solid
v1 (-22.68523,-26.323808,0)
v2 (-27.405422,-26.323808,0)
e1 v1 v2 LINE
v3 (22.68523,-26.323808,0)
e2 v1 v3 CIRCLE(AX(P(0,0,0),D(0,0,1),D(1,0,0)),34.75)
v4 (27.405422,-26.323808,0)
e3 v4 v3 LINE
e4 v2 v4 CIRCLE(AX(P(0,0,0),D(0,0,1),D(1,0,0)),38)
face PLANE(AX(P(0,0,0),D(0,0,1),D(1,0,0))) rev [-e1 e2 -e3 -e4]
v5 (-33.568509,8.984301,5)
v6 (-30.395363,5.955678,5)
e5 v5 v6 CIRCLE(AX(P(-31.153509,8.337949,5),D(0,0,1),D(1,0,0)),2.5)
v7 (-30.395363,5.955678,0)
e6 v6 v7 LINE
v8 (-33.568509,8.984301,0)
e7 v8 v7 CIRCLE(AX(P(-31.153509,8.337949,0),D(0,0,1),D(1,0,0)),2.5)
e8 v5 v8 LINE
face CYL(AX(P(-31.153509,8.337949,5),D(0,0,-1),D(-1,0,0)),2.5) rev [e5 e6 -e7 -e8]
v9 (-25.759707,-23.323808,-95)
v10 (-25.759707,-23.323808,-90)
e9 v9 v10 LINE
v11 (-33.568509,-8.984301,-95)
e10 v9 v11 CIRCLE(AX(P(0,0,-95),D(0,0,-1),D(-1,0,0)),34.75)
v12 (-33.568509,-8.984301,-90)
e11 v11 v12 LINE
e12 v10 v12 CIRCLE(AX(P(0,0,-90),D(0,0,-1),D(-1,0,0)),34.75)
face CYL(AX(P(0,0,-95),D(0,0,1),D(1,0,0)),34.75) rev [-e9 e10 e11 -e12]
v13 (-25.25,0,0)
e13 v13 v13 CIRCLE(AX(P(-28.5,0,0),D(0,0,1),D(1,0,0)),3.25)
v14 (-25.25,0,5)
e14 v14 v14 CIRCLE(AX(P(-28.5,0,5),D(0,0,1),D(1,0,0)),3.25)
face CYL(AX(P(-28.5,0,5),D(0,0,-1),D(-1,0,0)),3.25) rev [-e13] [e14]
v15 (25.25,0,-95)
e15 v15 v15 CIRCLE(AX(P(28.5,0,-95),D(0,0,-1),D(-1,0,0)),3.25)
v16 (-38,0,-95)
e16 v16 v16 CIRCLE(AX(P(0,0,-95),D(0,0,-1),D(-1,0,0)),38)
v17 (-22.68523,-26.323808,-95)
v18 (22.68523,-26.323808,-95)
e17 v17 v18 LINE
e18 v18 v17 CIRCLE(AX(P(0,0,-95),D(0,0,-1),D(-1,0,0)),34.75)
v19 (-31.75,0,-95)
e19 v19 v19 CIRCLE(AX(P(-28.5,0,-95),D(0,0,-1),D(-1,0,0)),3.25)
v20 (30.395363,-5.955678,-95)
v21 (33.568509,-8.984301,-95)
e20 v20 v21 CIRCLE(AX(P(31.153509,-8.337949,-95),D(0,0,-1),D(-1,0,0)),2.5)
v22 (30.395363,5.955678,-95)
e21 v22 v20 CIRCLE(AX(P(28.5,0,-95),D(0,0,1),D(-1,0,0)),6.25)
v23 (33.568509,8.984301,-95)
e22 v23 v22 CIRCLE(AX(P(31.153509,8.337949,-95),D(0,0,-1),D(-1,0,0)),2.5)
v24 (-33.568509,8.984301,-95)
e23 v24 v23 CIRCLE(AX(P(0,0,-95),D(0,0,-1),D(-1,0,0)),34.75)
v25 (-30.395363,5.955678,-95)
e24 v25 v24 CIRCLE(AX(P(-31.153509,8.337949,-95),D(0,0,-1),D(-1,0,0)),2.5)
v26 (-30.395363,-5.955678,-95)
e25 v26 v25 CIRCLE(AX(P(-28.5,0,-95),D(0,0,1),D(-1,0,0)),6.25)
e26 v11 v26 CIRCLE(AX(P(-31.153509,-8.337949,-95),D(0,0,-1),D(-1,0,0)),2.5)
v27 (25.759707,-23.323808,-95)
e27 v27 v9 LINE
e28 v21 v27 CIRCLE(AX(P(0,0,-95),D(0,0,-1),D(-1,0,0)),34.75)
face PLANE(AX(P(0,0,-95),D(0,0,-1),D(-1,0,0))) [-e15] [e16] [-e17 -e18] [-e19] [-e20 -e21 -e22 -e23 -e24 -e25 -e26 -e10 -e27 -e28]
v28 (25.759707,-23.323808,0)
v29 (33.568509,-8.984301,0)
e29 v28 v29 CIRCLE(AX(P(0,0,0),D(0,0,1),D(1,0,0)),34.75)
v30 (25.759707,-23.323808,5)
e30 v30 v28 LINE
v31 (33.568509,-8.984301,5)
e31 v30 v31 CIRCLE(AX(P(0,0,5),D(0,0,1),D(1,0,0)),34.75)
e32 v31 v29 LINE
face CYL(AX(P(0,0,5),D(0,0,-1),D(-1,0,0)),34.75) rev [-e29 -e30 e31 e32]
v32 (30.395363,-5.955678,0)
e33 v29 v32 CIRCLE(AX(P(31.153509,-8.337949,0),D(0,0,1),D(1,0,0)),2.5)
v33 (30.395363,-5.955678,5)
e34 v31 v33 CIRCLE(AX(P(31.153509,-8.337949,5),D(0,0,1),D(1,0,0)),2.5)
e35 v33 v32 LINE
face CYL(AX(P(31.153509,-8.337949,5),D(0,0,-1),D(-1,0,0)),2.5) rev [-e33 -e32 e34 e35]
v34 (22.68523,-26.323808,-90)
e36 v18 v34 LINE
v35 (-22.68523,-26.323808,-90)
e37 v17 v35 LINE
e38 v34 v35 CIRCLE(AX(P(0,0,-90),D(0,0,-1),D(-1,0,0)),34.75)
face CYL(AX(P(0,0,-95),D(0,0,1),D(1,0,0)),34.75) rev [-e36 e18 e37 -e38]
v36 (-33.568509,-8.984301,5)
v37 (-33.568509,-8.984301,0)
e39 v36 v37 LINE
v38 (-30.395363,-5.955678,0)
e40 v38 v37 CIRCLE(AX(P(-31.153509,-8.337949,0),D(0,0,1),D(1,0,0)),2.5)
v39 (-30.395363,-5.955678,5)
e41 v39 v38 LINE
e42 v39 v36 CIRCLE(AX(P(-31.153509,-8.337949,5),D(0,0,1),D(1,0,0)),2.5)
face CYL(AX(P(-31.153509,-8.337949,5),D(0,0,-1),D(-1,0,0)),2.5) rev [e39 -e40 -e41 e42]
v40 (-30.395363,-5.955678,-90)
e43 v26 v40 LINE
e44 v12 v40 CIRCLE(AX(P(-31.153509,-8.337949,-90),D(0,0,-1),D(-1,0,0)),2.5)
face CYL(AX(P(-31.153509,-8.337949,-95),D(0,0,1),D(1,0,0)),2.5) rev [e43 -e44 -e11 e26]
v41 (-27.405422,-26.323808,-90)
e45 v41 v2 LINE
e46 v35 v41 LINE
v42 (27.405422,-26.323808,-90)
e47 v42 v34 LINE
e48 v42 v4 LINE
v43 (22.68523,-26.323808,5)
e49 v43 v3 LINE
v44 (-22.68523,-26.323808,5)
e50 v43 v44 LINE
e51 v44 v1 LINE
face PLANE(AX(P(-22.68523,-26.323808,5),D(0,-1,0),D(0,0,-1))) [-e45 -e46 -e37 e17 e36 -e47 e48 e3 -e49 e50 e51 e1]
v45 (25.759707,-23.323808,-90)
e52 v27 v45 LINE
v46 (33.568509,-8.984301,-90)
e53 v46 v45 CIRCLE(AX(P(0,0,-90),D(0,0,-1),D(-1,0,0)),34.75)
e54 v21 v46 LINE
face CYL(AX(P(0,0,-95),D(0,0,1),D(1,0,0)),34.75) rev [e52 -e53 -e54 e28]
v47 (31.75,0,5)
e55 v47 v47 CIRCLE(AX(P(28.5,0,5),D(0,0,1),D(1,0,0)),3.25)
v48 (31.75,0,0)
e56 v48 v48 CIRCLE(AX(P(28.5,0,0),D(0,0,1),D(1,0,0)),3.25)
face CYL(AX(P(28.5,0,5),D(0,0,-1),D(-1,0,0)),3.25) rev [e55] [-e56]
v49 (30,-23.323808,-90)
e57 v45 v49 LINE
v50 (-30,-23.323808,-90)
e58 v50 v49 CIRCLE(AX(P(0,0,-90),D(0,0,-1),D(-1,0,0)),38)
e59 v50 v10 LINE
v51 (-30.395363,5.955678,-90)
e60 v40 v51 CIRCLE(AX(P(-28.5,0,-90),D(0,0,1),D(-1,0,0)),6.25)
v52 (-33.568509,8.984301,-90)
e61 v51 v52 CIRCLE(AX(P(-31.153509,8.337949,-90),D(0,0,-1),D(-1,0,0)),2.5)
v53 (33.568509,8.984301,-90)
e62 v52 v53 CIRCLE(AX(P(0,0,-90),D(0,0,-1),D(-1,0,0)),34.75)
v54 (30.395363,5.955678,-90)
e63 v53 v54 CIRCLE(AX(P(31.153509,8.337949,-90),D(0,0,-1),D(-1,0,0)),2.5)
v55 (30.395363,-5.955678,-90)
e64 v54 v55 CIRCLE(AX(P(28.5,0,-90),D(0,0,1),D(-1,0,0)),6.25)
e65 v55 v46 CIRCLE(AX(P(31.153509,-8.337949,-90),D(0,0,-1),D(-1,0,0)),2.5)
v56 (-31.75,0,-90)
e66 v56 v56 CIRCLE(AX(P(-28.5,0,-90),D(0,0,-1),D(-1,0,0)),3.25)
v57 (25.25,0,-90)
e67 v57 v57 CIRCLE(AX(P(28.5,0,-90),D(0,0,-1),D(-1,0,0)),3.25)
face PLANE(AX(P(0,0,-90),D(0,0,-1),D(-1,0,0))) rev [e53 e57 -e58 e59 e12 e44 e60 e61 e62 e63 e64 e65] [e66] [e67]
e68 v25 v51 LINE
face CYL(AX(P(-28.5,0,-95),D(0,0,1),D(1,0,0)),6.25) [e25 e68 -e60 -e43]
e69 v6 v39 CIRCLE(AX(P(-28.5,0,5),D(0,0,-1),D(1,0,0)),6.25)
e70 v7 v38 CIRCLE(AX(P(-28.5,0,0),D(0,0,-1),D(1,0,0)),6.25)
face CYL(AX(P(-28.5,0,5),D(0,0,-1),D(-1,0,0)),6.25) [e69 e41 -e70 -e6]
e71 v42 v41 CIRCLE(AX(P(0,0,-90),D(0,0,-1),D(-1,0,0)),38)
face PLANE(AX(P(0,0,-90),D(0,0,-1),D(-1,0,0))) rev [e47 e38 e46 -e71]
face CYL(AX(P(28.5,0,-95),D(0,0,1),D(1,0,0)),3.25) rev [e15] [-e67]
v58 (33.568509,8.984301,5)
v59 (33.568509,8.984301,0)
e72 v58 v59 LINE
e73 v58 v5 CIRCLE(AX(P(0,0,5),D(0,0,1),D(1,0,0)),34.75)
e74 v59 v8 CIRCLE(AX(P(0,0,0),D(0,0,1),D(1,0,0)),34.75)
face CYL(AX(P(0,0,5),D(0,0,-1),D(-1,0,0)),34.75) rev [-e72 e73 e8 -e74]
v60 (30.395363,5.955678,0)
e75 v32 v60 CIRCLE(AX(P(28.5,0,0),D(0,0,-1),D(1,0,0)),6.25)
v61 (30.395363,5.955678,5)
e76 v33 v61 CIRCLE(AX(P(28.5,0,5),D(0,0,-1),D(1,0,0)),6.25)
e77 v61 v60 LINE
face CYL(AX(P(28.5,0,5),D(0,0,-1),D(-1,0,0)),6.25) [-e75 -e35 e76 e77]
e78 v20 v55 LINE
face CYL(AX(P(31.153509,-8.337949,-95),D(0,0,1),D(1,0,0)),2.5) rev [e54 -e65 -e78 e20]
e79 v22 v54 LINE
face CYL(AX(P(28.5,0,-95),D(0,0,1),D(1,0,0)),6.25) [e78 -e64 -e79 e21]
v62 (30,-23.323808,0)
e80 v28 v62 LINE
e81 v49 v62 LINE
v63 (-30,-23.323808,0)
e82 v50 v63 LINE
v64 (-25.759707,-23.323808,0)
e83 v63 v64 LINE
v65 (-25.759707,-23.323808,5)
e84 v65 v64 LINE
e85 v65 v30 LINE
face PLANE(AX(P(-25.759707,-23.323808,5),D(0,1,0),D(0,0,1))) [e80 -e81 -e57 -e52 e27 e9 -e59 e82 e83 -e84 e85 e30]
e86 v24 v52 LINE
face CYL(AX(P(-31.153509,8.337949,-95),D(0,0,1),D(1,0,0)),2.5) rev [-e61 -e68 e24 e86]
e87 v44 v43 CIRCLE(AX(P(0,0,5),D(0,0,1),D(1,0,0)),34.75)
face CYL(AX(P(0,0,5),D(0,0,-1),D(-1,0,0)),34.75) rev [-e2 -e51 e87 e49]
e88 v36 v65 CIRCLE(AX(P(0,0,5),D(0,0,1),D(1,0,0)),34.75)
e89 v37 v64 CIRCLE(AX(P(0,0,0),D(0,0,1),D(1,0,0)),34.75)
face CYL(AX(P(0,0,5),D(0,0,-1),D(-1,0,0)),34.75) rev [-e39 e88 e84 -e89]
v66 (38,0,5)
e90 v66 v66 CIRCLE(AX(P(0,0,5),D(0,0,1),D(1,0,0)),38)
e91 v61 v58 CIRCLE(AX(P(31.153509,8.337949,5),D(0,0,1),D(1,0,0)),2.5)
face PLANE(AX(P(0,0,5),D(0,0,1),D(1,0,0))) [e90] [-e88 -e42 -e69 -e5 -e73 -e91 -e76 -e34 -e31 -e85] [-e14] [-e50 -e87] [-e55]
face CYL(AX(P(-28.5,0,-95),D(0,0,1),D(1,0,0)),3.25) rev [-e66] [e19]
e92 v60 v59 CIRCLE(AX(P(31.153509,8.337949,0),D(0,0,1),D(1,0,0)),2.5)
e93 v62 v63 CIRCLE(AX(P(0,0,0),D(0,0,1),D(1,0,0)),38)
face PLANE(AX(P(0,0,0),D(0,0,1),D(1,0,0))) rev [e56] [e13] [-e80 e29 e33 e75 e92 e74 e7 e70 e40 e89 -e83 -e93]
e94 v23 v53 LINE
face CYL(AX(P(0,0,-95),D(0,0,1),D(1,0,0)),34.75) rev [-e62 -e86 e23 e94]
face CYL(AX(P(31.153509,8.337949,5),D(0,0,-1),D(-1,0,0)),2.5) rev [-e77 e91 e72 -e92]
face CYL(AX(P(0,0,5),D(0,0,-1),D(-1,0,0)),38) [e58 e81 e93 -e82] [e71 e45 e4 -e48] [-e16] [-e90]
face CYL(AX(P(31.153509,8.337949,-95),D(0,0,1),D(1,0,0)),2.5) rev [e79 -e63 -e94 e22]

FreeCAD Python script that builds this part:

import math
import FreeCAD as App
import Part
import Sketcher
from FreeCAD import Vector
Q = App.Units.Quantity

doc = App.newDocument("Part")
params = doc.addObject("Spreadsheet::Sheet", "Params")
for row, (alias, value) in enumerate([
    ("sketch1_diameter", "76 mm"),
    ("sketch1_diameter2", "6.5 mm"),
    ("sketch1_radius", "2.5 mm"),
    ("sketch1_radius2", "34.75 mm"),
    ("sketch1_radius3", "6.25 mm"),
    ("pad1_length", "5 mm"),
    ("sketch2_radius", "38 mm"),
    ("sketch2_width", "60 mm"),
    ("pad2_length", "90 mm"),
    ("sketch3_radius", "38 mm"),
    ("sketch3_diameter", "6.5 mm"),
    ("sketch3_radius2", "2.5 mm"),
    ("sketch3_radius3", "34.75 mm"),
    ("sketch3_radius4", "6.25 mm"),
    ("pad3_length", "5 mm"),
], start=1):
    params.set(f"A{row}", alias)
    params.set(f"B{row}", "=" + value)
    params.setAlias(f"B{row}", alias)

body = doc.addObject("PartDesign::Body", "Body")

# Sketch on XY plane
sketch1 = body.newObject("Sketcher::SketchObject", "Sketch")
sketch1.AttachmentSupport = (doc.getObject("XY_Plane"), [""])
sketch1.MapMode = "FlatFace"
sketch1.addGeometry(Part.Circle(Vector(0, 0, 0), Vector(0, 0, 1), 38), False)
sketch1.addGeometry(Part.ArcOfCircle(Part.Circle(Vector(0, 0, 0), Vector(0, 0, 1), 34.7), math.radians(-131), math.radians(-49)), False)
sketch1.addGeometry(Part.LineSegment(Vector(-22.7, -26.3, 0), Vector(22.7, -26.3, 0)), False)
sketch1.addGeometry(Part.Circle(Vector(-28.5, 0, 0), Vector(0, 0, 1), 3.2), False)
sketch1.addGeometry(Part.LineSegment(Vector(25.8, -23.3, 0), Vector(-25.8, -23.3, 0)), False)
sketch1.addGeometry(Part.ArcOfCircle(Part.Circle(Vector(0, 0, 0), Vector(0, 0, 1), 34.7), math.radians(-165), math.radians(-138)), False)
sketch1.addGeometry(Part.ArcOfCircle(Part.Circle(Vector(-31.2, -8.3, 0), Vector(0, 0, 1), 2.5), math.radians(72), math.radians(195)), False)
sketch1.addGeometry(Part.ArcOfCircle(Part.Circle(Vector(-28.5, 0, 0), Vector(0, 0, 1), 6.2), math.radians(-108), math.radians(108)), False)
sketch1.addGeometry(Part.ArcOfCircle(Part.Circle(Vector(-31.2, 8.3, 0), Vector(0, 0, 1), 2.5), math.radians(165), math.radians(288)), False)
sketch1.addGeometry(Part.ArcOfCircle(Part.Circle(Vector(0, 0, 0), Vector(0, 0, 1), 34.8), math.radians(15), math.radians(165)), False)
sketch1.addGeometry(Part.ArcOfCircle(Part.Circle(Vector(31.2, 8.3, 0), Vector(0, 0, 1), 2.5), math.radians(-108), math.radians(15)), False)
sketch1.addGeometry(Part.ArcOfCircle(Part.Circle(Vector(28.5, 0, 0), Vector(0, 0, 1), 6.2), math.radians(72), math.radians(288)), False)
sketch1.addGeometry(Part.ArcOfCircle(Part.Circle(Vector(31.2, -8.3, 0), Vector(0, 0, 1), 2.5), math.radians(-15), math.radians(108)), False)
sketch1.addGeometry(Part.ArcOfCircle(Part.Circle(Vector(0, 0, 0), Vector(0, 0, 1), 34.7), math.radians(-42), math.radians(-15)), False)
sketch1.addGeometry(Part.Circle(Vector(28.5, 0, 0), Vector(0, 0, 1), 3.2), False)
sketch1.addConstraint(Sketcher.Constraint("Coincident", 1, 1, 2, 1))
sketch1.addConstraint(Sketcher.Constraint("Coincident", 2, 2, 1, 2))
sketch1.addConstraint(Sketcher.Constraint("Coincident", 4, 2, 5, 2))
sketch1.addConstraint(Sketcher.Constraint("Tangent", 5, 1, 6, 2))
sketch1.addConstraint(Sketcher.Constraint("Tangent", 6, 1, 7, 1))
sketch1.addConstraint(Sketcher.Constraint("Tangent", 7, 2, 8, 2))
sketch1.addConstraint(Sketcher.Constraint("Tangent", 8, 1, 9, 2))
sketch1.addConstraint(Sketcher.Constraint("Tangent", 9, 1, 10, 2))
sketch1.addConstraint(Sketcher.Constraint("Tangent", 10, 1, 11, 1))
sketch1.addConstraint(Sketcher.Constraint("Tangent", 11, 2, 12, 2))
sketch1.addConstraint(Sketcher.Constraint("Tangent", 12, 1, 13, 2))
sketch1.addConstraint(Sketcher.Constraint("Coincident", 13, 1, 4, 1))
sketch1.addConstraint(Sketcher.Constraint("Horizontal", 2))
sketch1.addConstraint(Sketcher.Constraint("Horizontal", 4))
sketch1.addConstraint(Sketcher.Constraint("Coincident", 0, 3, -1, 1))
sketch1.addConstraint(Sketcher.Constraint("Coincident", 1, 3, -1, 1))
sketch1.addConstraint(Sketcher.Constraint("Coincident", 5, 3, -1, 1))
sketch1.addConstraint(Sketcher.Constraint("Coincident", 9, 3, -1, 1))
sketch1.addConstraint(Sketcher.Constraint("Coincident", 13, 3, -1, 1))
sketch1.addConstraint(Sketcher.Constraint("Coincident", 7, 3, 3, 3))
sketch1.addConstraint(Sketcher.Constraint("Coincident", 14, 3, 11, 3))
sketch1.addConstraint(Sketcher.Constraint("Equal", 1, 5))
sketch1.addConstraint(Sketcher.Constraint("Equal", 6, 8))
sketch1.addConstraint(Sketcher.Constraint("Equal", 5, 9))
sketch1.addConstraint(Sketcher.Constraint("Equal", 8, 10))
sketch1.addConstraint(Sketcher.Constraint("Equal", 7, 11))
sketch1.addConstraint(Sketcher.Constraint("Equal", 10, 12))
sketch1.addConstraint(Sketcher.Constraint("Equal", 9, 13))
sketch1.addConstraint(Sketcher.Constraint("Equal", 3, 14))
sketch1.addConstraint(Sketcher.Constraint("Symmetric", 3, 3, 11, 3, -1, 1))
sketch1.addConstraint(Sketcher.Constraint("PointOnObject", 3, 3, -1))
sketch1.addConstraint(Sketcher.Constraint("Diameter", 0, Q("76 mm")))
sketch1.addConstraint(Sketcher.Constraint("Diameter", 3, Q("6.5 mm")))
sketch1.addConstraint(Sketcher.Constraint("Radius", 6, Q("2.5 mm")))
sketch1.addConstraint(Sketcher.Constraint("Radius", 1, Q("34.75 mm")))
sketch1.addConstraint(Sketcher.Constraint("Radius", 7, Q("6.25 mm")))
sketch1.addConstraint(Sketcher.Constraint("DistanceY", 1, 1, 4, 2, Q("3 mm")))
sketch1.addConstraint(Sketcher.Constraint("DistanceX", 3, 3, -1, 1, Q("28.5 mm")))
sketch1.addConstraint(Sketcher.Constraint("DistanceX", 2, 1, 2, 2, Q("45.37046 mm")))
sketch1.setExpression("Constraints[31]", "Params.sketch1_diameter")
sketch1.setExpression("Constraints[32]", "Params.sketch1_diameter2")
sketch1.setExpression("Constraints[33]", "Params.sketch1_radius")
sketch1.setExpression("Constraints[34]", "Params.sketch1_radius2")
sketch1.setExpression("Constraints[35]", "Params.sketch1_radius3")
pad1 = body.newObject("PartDesign::Pad", "Pad")
pad1.Profile = sketch1
pad1.setExpression("Length", "Params.pad1_length")

# Sketch on XY plane
sketch2 = body.newObject("Sketcher::SketchObject", "Sketch001")
sketch2.AttachmentSupport = (doc.getObject("XY_Plane"), [""])
sketch2.MapMode = "FlatFace"
sketch2.AttachmentOffset = App.Placement(Vector(0, 0, -90), App.Rotation())
sketch2.addGeometry(Part.LineSegment(Vector(-30, -23.3, 0), Vector(30, -23.3, 0)), False)
sketch2.addGeometry(Part.ArcOfCircle(Part.Circle(Vector(0, 0, 0), Vector(0, 0, 1), 38), math.radians(-43.85), math.radians(-37.86)), False)
sketch2.addGeometry(Part.LineSegment(Vector(27.4, -26.3, 0), Vector(-27.4, -26.3, 0)), False)
sketch2.addGeometry(Part.ArcOfCircle(Part.Circle(Vector(0, 0, 0), Vector(0, 0, 1), 38), math.radians(-142.14), math.radians(-136.15)), False)
sketch2.addConstraint(Sketcher.Constraint("Coincident", 0, 2, 1, 2))
sketch2.addConstraint(Sketcher.Constraint("Coincident", 1, 1, 2, 1))
sketch2.addConstraint(Sketcher.Constraint("Coincident", 2, 2, 3, 2))
sketch2.addConstraint(Sketcher.Constraint("Coincident", 3, 1, 0, 1))
sketch2.addConstraint(Sketcher.Constraint("Horizontal", 0))
sketch2.addConstraint(Sketcher.Constraint("Horizontal", 2))
sketch2.addConstraint(Sketcher.Constraint("Coincident", 1, 3, -1, 1))
sketch2.addConstraint(Sketcher.Constraint("Coincident", 3, 3, -1, 1))
sketch2.addConstraint(Sketcher.Constraint("Equal", 1, 3))
sketch2.addConstraint(Sketcher.Constraint("Radius", 1, Q("38 mm")))
sketch2.addConstraint(Sketcher.Constraint("DistanceX", 0, 1, 0, 2, Q("60 mm")))
sketch2.addConstraint(Sketcher.Constraint("DistanceY", 1, 1, 0, 2, Q("3 mm")))
sketch2.setExpression("Constraints[9]", "Params.sketch2_radius")
sketch2.setExpression("Constraints[10]", "Params.sketch2_width")
pad2 = body.newObject("PartDesign::Pad", "Pad001")
pad2.Profile = sketch2
pad2.setExpression("Length", "Params.pad2_length")

# Sketch on XY plane
sketch3 = body.newObject("Sketcher::SketchObject", "Sketch002")
sketch3.AttachmentSupport = (doc.getObject("XY_Plane"), [""])
sketch3.MapMode = "FlatFace"
sketch3.AttachmentOffset = App.Placement(Vector(0, 0, -95), App.Rotation())
sketch3.addGeometry(Part.ArcOfCircle(Part.Circle(Vector(0, 0, 0), Vector(0, 0, 1), 38), math.radians(-43.85), math.radians(-37.86)), False)
sketch3.addGeometry(Part.ArcOfCircle(Part.Circle(Vector(0, 0, 0), Vector(0, 0, 1), 38), math.radians(-136), math.radians(-44)), False)
sketch3.addGeometry(Part.ArcOfCircle(Part.Circle(Vector(0, 0, 0), Vector(0, 0, 1), 38), math.radians(-142.14), math.radians(-136.15)), False)
sketch3.addGeometry(Part.ArcOfCircle(Part.Circle(Vector(0, 0, 0), Vector(0, 0, 1), 38), math.radians(-38), math.radians(218)), False)
sketch3.addGeometry(Part.ArcOfCircle(Part.Circle(Vector(0, 0, 0), Vector(0, 0, 1), 34.7), math.radians(-131), math.radians(-49)), False)
sketch3.addGeometry(Part.LineSegment(Vector(22.7, -26.3, 0), Vector(-22.7, -26.3, 0)), False)
sketch3.addGeometry(Part.Circle(Vector(28.5, 0, 0), Vector(0, 0, 1), 3.2), False)
sketch3.addGeometry(Part.ArcOfCircle(Part.Circle(Vector(0, 0, 0), Vector(0, 0, 1), 34.7), math.radians(-165), math.radians(-138)), False)
sketch3.addGeometry(Part.LineSegment(Vector(-25.8, -23.3, 0), Vector(25.8, -23.3, 0)), False)
sketch3.addGeometry(Part.ArcOfCircle(Part.Circle(Vector(0, 0, 0), Vector(0, 0, 1), 34.7), math.radians(-42), math.radians(-15)), False)
sketch3.addGeometry(Part.ArcOfCircle(Part.Circle(Vector(31.2, -8.3, 0), Vector(0, 0, 1), 2.5), math.radians(-15), math.radians(108)), False)
sketch3.addGeometry(Part.ArcOfCircle(Part.Circle(Vector(28.5, 0, 0), Vector(0, 0, 1), 6.2), math.radians(72), math.radians(288)), False)
sketch3.addGeometry(Part.ArcOfCircle(Part.Circle(Vector(31.2, 8.3, 0), Vector(0, 0, 1), 2.5), math.radians(-108), math.radians(15)), False)
sketch3.addGeometry(Part.ArcOfCircle(Part.Circle(Vector(0, 0, 0), Vector(0, 0, 1), 34.8), math.radians(15), math.radians(165)), False)
sketch3.addGeometry(Part.ArcOfCircle(Part.Circle(Vector(-31.2, 8.3, 0), Vector(0, 0, 1), 2.5), math.radians(165), math.radians(288)), False)
sketch3.addGeometry(Part.ArcOfCircle(Part.Circle(Vector(-28.5, 0, 0), Vector(0, 0, 1), 6.2), math.radians(-108), math.radians(108)), False)
sketch3.addGeometry(Part.ArcOfCircle(Part.Circle(Vector(-31.2, -8.3, 0), Vector(0, 0, 1), 2.5), math.radians(72), math.radians(195)), False)
sketch3.addGeometry(Part.Circle(Vector(-28.5, 0, 0), Vector(0, 0, 1), 3.2), False)
sketch3.addConstraint(Sketcher.Constraint("Tangent", 0, 1, 1, 2))
sketch3.addConstraint(Sketcher.Constraint("Tangent", 1, 1, 2, 2))
sketch3.addConstraint(Sketcher.Constraint("Tangent", 2, 1, 3, 2))
sketch3.addConstraint(Sketcher.Constraint("Coincident", 3, 1, 0, 2))
sketch3.addConstraint(Sketcher.Constraint("Coincident", 4, 1, 5, 2))
sketch3.addConstraint(Sketcher.Constraint("Coincident", 5, 1, 4, 2))
sketch3.addConstraint(Sketcher.Constraint("Coincident", 7, 2, 8, 1))
sketch3.addConstraint(Sketcher.Constraint("Coincident", 8, 2, 9, 1))
sketch3.addConstraint(Sketcher.Constraint("Tangent", 9, 2, 10, 1))
sketch3.addConstraint(Sketcher.Constraint("Tangent", 10, 2, 11, 2))
sketch3.addConstraint(Sketcher.Constraint("Tangent", 11, 1, 12, 1))
sketch3.addConstraint(Sketcher.Constraint("Tangent", 12, 2, 13, 1))
sketch3.addConstraint(Sketcher.Constraint("Tangent", 13, 2, 14, 1))
sketch3.addConstraint(Sketcher.Constraint("Tangent", 14, 2, 15, 2))
sketch3.addConstraint(Sketcher.Constraint("Tangent", 15, 1, 16, 1))
sketch3.addConstraint(Sketcher.Constraint("Tangent", 16, 2, 7, 1))
sketch3.addConstraint(Sketcher.Constraint("Horizontal", 5))
sketch3.addConstraint(Sketcher.Constraint("Horizontal", 8))
sketch3.addConstraint(Sketcher.Constraint("Coincident", 0, 3, -1, 1))
sketch3.addConstraint(Sketcher.Constraint("Coincident", 2, 3, -1, 1))
sketch3.addConstraint(Sketcher.Constraint("Coincident", 4, 3, -1, 1))
sketch3.addConstraint(Sketcher.Constraint("Coincident", 7, 3, -1, 1))
sketch3.addConstraint(Sketcher.Constraint("Coincident", 9, 3, -1, 1))
sketch3.addConstraint(Sketcher.Constraint("Coincident", 13, 3, -1, 1))
sketch3.addConstraint(Sketcher.Constraint("Coincident", 11, 3, 6, 3))
sketch3.addConstraint(Sketcher.Constraint("Coincident", 17, 3, 15, 3))
sketch3.addConstraint(Sketcher.Constraint("Equal", 4, 7))
sketch3.addConstraint(Sketcher.Constraint("Equal", 7, 9))
sketch3.addConstraint(Sketcher.Constraint("Equal", 10, 12))
sketch3.addConstraint(Sketcher.Constraint("Equal", 9, 13))
sketch3.addConstraint(Sketcher.Constraint("Equal", 12, 14))
sketch3.addConstraint(Sketcher.Constraint("Equal", 11, 15))
sketch3.addConstraint(Sketcher.Constraint("Equal", 14, 16))
sketch3.addConstraint(Sketcher.Constraint("Equal", 6, 17))
sketch3.addConstraint(Sketcher.Constraint("Symmetric", 6, 3, 15, 3, -1, 1))
sketch3.addConstraint(Sketcher.Constraint("PointOnObject", 6, 3, -1))
sketch3.addConstraint(Sketcher.Constraint("Horizontal", 0, 1, 1, 1))
sketch3.addConstraint(Sketcher.Constraint("Horizontal", 2, 1, 3, 1))
sketch3.addConstraint(Sketcher.Constraint("Horizontal", 1, 1, 4, 1))
sketch3.addConstraint(Sketcher.Constraint("Horizontal", 3, 1, 7, 2))
sketch3.addConstraint(Sketcher.Constraint("Radius", 0, Q("38 mm")))
sketch3.addConstraint(Sketcher.Constraint("Diameter", 6, Q("6.5 mm")))
sketch3.addConstraint(Sketcher.Constraint("Radius", 10, Q("2.5 mm")))
sketch3.addConstraint(Sketcher.Constraint("Radius", 4, Q("34.75 mm")))
sketch3.addConstraint(Sketcher.Constraint("Radius", 11, Q("6.25 mm")))
sketch3.addConstraint(Sketcher.Constraint("DistanceX", 2, 1, -1, 1, Q("30 mm")))
sketch3.addConstraint(Sketcher.Constraint("DistanceY", 1, 1, 2, 1, Q("3 mm")))
sketch3.addConstraint(Sketcher.Constraint("DistanceX", -1, 1, 6, 3, Q("28.5 mm")))
sketch3.setExpression("Constraints[40]", "Params.sketch3_radius")
sketch3.setExpression("Constraints[41]", "Params.sketch3_diameter")
sketch3.setExpression("Constraints[42]", "Params.sketch3_radius2")
sketch3.setExpression("Constraints[43]", "Params.sketch3_radius3")
sketch3.setExpression("Constraints[44]", "Params.sketch3_radius4")
pad3 = body.newObject("PartDesign::Pad", "Pad002")
pad3.Profile = sketch3
pad3.setExpression("Length", "Params.pad3_length")

doc.recompute()
